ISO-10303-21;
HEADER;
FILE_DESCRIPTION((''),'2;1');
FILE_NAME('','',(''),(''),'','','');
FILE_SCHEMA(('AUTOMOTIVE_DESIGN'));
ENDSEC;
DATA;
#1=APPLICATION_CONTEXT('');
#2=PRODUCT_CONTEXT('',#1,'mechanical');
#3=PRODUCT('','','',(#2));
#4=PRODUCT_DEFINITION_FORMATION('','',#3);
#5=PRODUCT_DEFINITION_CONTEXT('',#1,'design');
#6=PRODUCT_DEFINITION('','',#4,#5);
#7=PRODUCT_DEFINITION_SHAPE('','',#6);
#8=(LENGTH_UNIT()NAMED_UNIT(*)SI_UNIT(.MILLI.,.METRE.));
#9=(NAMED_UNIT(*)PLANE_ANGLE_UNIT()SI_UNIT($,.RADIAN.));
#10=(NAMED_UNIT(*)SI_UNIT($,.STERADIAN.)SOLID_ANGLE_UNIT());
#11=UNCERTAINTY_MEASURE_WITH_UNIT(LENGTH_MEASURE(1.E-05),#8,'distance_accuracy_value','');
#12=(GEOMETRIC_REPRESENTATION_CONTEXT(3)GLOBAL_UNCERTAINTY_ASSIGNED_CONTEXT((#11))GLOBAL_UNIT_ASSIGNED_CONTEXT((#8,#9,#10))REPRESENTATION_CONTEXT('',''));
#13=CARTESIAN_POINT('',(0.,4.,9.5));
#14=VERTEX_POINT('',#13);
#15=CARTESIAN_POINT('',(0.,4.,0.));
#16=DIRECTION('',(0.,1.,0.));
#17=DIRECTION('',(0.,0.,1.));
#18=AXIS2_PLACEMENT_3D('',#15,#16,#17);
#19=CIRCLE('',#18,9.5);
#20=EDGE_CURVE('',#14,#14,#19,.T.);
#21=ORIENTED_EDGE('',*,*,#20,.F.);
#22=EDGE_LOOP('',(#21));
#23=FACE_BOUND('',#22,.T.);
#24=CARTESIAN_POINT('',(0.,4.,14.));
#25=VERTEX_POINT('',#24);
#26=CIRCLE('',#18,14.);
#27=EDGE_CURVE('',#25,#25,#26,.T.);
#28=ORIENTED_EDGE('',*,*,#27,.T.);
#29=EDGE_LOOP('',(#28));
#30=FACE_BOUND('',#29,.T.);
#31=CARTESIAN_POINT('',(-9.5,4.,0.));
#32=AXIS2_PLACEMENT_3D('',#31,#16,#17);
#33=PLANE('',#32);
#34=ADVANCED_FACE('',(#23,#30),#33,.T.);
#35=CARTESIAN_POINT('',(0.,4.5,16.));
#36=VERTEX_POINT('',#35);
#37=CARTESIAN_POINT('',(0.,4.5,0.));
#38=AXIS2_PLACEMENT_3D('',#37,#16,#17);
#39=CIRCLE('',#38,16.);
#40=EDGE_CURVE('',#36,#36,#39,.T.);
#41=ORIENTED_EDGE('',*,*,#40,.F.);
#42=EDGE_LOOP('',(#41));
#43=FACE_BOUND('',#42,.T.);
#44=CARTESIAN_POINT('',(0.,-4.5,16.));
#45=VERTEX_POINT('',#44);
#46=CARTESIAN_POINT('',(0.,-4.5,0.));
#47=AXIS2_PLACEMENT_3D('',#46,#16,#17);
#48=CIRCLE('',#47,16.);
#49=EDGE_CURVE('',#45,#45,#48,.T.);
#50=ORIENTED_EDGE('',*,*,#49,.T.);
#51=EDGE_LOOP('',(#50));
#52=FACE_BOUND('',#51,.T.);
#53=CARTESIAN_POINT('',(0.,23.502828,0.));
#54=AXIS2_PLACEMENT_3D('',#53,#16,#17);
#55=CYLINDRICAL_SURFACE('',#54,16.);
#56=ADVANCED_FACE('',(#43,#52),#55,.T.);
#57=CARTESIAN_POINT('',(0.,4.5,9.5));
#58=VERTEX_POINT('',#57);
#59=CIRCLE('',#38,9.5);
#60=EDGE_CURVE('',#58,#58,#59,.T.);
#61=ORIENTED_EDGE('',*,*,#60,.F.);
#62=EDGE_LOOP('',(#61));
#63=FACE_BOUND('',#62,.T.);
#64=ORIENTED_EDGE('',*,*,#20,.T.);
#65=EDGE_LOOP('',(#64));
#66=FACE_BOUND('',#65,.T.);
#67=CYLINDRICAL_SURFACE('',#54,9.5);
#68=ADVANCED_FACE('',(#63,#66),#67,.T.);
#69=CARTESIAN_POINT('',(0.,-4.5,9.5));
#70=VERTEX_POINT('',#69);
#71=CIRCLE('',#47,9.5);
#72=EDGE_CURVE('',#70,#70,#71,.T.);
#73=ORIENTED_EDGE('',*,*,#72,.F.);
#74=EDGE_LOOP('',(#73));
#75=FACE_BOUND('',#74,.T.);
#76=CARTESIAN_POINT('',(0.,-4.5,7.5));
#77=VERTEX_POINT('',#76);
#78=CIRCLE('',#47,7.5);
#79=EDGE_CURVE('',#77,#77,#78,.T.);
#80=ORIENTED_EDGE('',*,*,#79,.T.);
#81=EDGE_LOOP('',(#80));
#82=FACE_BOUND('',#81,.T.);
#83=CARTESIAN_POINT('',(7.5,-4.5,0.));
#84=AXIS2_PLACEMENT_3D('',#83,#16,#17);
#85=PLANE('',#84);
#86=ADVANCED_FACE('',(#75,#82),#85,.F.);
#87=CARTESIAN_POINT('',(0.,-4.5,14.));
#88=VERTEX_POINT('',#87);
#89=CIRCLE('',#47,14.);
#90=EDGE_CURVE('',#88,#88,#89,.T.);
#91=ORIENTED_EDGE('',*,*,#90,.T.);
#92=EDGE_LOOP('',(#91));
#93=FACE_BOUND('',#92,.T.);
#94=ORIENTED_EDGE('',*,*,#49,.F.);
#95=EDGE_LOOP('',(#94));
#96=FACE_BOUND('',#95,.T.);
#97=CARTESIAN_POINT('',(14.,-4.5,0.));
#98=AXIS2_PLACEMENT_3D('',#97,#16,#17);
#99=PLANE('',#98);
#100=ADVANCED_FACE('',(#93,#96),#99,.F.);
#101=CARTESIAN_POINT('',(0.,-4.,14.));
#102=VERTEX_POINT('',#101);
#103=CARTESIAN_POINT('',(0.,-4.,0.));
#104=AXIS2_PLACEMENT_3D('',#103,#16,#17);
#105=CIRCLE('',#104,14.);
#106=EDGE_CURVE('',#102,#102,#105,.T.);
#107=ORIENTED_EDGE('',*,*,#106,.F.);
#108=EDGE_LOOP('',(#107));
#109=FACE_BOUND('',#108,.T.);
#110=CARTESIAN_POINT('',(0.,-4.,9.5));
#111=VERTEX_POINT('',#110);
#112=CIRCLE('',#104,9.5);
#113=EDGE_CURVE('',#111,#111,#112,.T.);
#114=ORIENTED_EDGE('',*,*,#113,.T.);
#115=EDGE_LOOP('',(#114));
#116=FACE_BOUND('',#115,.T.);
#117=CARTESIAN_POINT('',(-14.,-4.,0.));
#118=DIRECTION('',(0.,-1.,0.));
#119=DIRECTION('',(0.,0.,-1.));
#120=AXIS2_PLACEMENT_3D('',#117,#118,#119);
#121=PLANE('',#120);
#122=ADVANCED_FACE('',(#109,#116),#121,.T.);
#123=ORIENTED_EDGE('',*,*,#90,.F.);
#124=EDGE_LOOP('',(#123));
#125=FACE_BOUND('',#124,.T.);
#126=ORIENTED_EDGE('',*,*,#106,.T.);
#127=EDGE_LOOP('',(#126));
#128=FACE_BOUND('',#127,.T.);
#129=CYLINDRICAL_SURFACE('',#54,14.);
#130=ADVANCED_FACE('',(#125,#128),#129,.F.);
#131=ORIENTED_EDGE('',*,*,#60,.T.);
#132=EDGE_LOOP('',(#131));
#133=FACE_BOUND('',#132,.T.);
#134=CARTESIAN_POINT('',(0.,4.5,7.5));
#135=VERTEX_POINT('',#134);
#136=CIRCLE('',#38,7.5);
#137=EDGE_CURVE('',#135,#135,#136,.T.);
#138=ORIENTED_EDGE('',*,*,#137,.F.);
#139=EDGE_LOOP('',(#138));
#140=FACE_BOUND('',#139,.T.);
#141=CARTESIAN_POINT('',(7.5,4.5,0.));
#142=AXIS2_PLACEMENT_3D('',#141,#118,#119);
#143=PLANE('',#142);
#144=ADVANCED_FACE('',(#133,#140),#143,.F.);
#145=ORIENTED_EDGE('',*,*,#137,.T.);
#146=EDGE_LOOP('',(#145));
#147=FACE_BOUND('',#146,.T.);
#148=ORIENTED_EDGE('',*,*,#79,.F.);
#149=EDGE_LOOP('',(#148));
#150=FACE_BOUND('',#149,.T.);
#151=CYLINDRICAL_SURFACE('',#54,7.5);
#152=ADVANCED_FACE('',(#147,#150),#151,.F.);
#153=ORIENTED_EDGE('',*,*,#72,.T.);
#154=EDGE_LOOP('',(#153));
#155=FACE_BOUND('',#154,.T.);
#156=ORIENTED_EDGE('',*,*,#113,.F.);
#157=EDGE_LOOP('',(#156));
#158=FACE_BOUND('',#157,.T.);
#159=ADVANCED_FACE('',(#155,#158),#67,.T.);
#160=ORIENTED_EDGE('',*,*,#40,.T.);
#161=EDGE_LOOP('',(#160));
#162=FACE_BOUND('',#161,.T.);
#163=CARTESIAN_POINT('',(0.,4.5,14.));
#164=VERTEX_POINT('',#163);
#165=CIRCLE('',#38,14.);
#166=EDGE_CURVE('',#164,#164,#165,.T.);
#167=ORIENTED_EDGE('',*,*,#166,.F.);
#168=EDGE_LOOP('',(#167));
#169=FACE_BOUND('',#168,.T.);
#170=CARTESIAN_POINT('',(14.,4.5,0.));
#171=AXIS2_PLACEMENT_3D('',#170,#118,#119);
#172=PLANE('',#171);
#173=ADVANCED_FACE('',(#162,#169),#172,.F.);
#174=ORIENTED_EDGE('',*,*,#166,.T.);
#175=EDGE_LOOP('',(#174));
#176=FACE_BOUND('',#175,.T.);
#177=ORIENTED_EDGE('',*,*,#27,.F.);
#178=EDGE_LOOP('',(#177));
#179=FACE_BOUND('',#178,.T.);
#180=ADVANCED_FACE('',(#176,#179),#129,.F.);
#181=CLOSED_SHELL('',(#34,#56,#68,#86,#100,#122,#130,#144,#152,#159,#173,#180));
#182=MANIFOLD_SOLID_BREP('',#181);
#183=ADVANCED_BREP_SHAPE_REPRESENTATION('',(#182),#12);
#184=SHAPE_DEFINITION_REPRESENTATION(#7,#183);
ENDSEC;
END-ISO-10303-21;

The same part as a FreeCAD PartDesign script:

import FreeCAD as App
import Part
import Sketcher
from FreeCAD import Vector

doc = App.newDocument("Part")
body = doc.addObject("PartDesign::Body", "Body")
body.AllowCompound = True

# Sketch on XY plane
sketch1 = body.newObject("Sketcher::SketchObject", "Sketch")
sketch1.AttachmentSupport = (doc.getObject("XY_Plane"), [""])
sketch1.MapMode = "FlatFace"
sketch1.addGeometry([
    Part.LineSegment(Vector(7.5, 4.5, 0), Vector(7.5, -4.5, 0)),  # 0
    Part.LineSegment(Vector(7.5, -4.5, 0), Vector(9.5, -4.5, 0)),  # 1
    Part.LineSegment(Vector(9.5, -4.5, 0), Vector(9.5, 4.5, 0)),  # 2
    Part.LineSegment(Vector(9.5, 4.5, 0), Vector(7.5, 4.5, 0)),  # 3
    Part.LineSegment(Vector(14, 4.5, 0), Vector(14, -4.5, 0)),  # 4
    Part.LineSegment(Vector(14, -4.5, 0), Vector(16, -4.5, 0)),  # 5
    Part.LineSegment(Vector(16, -4.5, 0), Vector(16, 4.5, 0)),  # 6
    Part.LineSegment(Vector(16, 4.5, 0), Vector(14, 4.5, 0)),  # 7
], False)
sketch1.addConstraint([
    Sketcher.Constraint("Coincident", 0, 2, 1, 1),
    Sketcher.Constraint("Coincident", 1, 2, 2, 1),
    Sketcher.Constraint("Coincident", 2, 2, 3, 1),
    Sketcher.Constraint("Coincident", 3, 2, 0, 1),
    Sketcher.Constraint("Coincident", 4, 2, 5, 1),
    Sketcher.Constraint("Coincident", 5, 2, 6, 1),
    Sketcher.Constraint("Coincident", 6, 2, 7, 1),
    Sketcher.Constraint("Coincident", 7, 2, 4, 1),
    Sketcher.Constraint("Vertical", 0),
    Sketcher.Constraint("Horizontal", 1),
    Sketcher.Constraint("Vertical", 2),
    Sketcher.Constraint("Horizontal", 3),
    Sketcher.Constraint("Vertical", 4),
    Sketcher.Constraint("Horizontal", 5),
    Sketcher.Constraint("Vertical", 6),
    Sketcher.Constraint("Horizontal", 7),
    Sketcher.Constraint("Horizontal", 1, 2, 4, 2),
    Sketcher.Constraint("Horizontal", 3, 2, 6, 2),
    Sketcher.Constraint("Equal", 3, 5),
    Sketcher.Constraint("DistanceX", 1, 1, 1, 2, 2.0),
    Sketcher.Constraint("DistanceY", 0, 2, 0, 1, 9.0),
    Sketcher.Constraint("DistanceX", -1, 1, 4, 2, 14.0),
    Sketcher.Constraint("DistanceX", -1, 1, 0, 2, 7.5),
    Sketcher.Constraint("DistanceY", 0, 2, -1, 1, 4.5),
])
revolution = body.newObject("PartDesign::Revolution", "Revolution")
revolution.Profile = sketch1
revolution.ReferenceAxis = (sketch1, ["V_Axis"])
revolution.Angle = 360

# Sketch on XY plane
sketch2 = body.newObject("Sketcher::SketchObject", "Sketch001")
sketch2.AttachmentSupport = (doc.getObject("XY_Plane"), [""])
sketch2.MapMode = "FlatFace"
sketch2.addGeometry([
    Part.LineSegment(Vector(-14, 4, 0), Vector(-14, -4, 0)),
    Part.LineSegment(Vector(-14, -4, 0), Vector(-9.5, -4, 0)),
    Part.LineSegment(Vector(-9.5, -4, 0), Vector(-9.5, 4, 0)),
    Part.LineSegment(Vector(-9.5, 4, 0), Vector(-14, 4, 0)),
], False)
sketch2.addConstraint([
    Sketcher.Constraint("Coincident", 0, 2, 1, 1),
    Sketcher.Constraint("Coincident", 1, 2, 2, 1),
    Sketcher.Constraint("Coincident", 2, 2, 3, 1),
    Sketcher.Constraint("Coincident", 3, 2, 0, 1),
    Sketcher.Constraint("Vertical", 0),
    Sketcher.Constraint("Horizontal", 1),
    Sketcher.Constraint("Vertical", 2),
    Sketcher.Constraint("Horizontal", 3),
    Sketcher.Constraint("DistanceY", 0, 2, 0, 1, 8.0),
    Sketcher.Constraint("DistanceX", 1, 1, 1, 2, 4.5),
    Sketcher.Constraint("DistanceX", 0, 2, -1, 1, 14.0),
    Sketcher.Constraint("DistanceY", 0, 2, -1, 1, 4.0),
])
revolution2 = body.newObject("PartDesign::Revolution", "Revolution001")
revolution2.Profile = sketch2
revolution2.ReferenceAxis = (sketch2, ["V_Axis"])
revolution2.Angle = 360

doc.recompute()
